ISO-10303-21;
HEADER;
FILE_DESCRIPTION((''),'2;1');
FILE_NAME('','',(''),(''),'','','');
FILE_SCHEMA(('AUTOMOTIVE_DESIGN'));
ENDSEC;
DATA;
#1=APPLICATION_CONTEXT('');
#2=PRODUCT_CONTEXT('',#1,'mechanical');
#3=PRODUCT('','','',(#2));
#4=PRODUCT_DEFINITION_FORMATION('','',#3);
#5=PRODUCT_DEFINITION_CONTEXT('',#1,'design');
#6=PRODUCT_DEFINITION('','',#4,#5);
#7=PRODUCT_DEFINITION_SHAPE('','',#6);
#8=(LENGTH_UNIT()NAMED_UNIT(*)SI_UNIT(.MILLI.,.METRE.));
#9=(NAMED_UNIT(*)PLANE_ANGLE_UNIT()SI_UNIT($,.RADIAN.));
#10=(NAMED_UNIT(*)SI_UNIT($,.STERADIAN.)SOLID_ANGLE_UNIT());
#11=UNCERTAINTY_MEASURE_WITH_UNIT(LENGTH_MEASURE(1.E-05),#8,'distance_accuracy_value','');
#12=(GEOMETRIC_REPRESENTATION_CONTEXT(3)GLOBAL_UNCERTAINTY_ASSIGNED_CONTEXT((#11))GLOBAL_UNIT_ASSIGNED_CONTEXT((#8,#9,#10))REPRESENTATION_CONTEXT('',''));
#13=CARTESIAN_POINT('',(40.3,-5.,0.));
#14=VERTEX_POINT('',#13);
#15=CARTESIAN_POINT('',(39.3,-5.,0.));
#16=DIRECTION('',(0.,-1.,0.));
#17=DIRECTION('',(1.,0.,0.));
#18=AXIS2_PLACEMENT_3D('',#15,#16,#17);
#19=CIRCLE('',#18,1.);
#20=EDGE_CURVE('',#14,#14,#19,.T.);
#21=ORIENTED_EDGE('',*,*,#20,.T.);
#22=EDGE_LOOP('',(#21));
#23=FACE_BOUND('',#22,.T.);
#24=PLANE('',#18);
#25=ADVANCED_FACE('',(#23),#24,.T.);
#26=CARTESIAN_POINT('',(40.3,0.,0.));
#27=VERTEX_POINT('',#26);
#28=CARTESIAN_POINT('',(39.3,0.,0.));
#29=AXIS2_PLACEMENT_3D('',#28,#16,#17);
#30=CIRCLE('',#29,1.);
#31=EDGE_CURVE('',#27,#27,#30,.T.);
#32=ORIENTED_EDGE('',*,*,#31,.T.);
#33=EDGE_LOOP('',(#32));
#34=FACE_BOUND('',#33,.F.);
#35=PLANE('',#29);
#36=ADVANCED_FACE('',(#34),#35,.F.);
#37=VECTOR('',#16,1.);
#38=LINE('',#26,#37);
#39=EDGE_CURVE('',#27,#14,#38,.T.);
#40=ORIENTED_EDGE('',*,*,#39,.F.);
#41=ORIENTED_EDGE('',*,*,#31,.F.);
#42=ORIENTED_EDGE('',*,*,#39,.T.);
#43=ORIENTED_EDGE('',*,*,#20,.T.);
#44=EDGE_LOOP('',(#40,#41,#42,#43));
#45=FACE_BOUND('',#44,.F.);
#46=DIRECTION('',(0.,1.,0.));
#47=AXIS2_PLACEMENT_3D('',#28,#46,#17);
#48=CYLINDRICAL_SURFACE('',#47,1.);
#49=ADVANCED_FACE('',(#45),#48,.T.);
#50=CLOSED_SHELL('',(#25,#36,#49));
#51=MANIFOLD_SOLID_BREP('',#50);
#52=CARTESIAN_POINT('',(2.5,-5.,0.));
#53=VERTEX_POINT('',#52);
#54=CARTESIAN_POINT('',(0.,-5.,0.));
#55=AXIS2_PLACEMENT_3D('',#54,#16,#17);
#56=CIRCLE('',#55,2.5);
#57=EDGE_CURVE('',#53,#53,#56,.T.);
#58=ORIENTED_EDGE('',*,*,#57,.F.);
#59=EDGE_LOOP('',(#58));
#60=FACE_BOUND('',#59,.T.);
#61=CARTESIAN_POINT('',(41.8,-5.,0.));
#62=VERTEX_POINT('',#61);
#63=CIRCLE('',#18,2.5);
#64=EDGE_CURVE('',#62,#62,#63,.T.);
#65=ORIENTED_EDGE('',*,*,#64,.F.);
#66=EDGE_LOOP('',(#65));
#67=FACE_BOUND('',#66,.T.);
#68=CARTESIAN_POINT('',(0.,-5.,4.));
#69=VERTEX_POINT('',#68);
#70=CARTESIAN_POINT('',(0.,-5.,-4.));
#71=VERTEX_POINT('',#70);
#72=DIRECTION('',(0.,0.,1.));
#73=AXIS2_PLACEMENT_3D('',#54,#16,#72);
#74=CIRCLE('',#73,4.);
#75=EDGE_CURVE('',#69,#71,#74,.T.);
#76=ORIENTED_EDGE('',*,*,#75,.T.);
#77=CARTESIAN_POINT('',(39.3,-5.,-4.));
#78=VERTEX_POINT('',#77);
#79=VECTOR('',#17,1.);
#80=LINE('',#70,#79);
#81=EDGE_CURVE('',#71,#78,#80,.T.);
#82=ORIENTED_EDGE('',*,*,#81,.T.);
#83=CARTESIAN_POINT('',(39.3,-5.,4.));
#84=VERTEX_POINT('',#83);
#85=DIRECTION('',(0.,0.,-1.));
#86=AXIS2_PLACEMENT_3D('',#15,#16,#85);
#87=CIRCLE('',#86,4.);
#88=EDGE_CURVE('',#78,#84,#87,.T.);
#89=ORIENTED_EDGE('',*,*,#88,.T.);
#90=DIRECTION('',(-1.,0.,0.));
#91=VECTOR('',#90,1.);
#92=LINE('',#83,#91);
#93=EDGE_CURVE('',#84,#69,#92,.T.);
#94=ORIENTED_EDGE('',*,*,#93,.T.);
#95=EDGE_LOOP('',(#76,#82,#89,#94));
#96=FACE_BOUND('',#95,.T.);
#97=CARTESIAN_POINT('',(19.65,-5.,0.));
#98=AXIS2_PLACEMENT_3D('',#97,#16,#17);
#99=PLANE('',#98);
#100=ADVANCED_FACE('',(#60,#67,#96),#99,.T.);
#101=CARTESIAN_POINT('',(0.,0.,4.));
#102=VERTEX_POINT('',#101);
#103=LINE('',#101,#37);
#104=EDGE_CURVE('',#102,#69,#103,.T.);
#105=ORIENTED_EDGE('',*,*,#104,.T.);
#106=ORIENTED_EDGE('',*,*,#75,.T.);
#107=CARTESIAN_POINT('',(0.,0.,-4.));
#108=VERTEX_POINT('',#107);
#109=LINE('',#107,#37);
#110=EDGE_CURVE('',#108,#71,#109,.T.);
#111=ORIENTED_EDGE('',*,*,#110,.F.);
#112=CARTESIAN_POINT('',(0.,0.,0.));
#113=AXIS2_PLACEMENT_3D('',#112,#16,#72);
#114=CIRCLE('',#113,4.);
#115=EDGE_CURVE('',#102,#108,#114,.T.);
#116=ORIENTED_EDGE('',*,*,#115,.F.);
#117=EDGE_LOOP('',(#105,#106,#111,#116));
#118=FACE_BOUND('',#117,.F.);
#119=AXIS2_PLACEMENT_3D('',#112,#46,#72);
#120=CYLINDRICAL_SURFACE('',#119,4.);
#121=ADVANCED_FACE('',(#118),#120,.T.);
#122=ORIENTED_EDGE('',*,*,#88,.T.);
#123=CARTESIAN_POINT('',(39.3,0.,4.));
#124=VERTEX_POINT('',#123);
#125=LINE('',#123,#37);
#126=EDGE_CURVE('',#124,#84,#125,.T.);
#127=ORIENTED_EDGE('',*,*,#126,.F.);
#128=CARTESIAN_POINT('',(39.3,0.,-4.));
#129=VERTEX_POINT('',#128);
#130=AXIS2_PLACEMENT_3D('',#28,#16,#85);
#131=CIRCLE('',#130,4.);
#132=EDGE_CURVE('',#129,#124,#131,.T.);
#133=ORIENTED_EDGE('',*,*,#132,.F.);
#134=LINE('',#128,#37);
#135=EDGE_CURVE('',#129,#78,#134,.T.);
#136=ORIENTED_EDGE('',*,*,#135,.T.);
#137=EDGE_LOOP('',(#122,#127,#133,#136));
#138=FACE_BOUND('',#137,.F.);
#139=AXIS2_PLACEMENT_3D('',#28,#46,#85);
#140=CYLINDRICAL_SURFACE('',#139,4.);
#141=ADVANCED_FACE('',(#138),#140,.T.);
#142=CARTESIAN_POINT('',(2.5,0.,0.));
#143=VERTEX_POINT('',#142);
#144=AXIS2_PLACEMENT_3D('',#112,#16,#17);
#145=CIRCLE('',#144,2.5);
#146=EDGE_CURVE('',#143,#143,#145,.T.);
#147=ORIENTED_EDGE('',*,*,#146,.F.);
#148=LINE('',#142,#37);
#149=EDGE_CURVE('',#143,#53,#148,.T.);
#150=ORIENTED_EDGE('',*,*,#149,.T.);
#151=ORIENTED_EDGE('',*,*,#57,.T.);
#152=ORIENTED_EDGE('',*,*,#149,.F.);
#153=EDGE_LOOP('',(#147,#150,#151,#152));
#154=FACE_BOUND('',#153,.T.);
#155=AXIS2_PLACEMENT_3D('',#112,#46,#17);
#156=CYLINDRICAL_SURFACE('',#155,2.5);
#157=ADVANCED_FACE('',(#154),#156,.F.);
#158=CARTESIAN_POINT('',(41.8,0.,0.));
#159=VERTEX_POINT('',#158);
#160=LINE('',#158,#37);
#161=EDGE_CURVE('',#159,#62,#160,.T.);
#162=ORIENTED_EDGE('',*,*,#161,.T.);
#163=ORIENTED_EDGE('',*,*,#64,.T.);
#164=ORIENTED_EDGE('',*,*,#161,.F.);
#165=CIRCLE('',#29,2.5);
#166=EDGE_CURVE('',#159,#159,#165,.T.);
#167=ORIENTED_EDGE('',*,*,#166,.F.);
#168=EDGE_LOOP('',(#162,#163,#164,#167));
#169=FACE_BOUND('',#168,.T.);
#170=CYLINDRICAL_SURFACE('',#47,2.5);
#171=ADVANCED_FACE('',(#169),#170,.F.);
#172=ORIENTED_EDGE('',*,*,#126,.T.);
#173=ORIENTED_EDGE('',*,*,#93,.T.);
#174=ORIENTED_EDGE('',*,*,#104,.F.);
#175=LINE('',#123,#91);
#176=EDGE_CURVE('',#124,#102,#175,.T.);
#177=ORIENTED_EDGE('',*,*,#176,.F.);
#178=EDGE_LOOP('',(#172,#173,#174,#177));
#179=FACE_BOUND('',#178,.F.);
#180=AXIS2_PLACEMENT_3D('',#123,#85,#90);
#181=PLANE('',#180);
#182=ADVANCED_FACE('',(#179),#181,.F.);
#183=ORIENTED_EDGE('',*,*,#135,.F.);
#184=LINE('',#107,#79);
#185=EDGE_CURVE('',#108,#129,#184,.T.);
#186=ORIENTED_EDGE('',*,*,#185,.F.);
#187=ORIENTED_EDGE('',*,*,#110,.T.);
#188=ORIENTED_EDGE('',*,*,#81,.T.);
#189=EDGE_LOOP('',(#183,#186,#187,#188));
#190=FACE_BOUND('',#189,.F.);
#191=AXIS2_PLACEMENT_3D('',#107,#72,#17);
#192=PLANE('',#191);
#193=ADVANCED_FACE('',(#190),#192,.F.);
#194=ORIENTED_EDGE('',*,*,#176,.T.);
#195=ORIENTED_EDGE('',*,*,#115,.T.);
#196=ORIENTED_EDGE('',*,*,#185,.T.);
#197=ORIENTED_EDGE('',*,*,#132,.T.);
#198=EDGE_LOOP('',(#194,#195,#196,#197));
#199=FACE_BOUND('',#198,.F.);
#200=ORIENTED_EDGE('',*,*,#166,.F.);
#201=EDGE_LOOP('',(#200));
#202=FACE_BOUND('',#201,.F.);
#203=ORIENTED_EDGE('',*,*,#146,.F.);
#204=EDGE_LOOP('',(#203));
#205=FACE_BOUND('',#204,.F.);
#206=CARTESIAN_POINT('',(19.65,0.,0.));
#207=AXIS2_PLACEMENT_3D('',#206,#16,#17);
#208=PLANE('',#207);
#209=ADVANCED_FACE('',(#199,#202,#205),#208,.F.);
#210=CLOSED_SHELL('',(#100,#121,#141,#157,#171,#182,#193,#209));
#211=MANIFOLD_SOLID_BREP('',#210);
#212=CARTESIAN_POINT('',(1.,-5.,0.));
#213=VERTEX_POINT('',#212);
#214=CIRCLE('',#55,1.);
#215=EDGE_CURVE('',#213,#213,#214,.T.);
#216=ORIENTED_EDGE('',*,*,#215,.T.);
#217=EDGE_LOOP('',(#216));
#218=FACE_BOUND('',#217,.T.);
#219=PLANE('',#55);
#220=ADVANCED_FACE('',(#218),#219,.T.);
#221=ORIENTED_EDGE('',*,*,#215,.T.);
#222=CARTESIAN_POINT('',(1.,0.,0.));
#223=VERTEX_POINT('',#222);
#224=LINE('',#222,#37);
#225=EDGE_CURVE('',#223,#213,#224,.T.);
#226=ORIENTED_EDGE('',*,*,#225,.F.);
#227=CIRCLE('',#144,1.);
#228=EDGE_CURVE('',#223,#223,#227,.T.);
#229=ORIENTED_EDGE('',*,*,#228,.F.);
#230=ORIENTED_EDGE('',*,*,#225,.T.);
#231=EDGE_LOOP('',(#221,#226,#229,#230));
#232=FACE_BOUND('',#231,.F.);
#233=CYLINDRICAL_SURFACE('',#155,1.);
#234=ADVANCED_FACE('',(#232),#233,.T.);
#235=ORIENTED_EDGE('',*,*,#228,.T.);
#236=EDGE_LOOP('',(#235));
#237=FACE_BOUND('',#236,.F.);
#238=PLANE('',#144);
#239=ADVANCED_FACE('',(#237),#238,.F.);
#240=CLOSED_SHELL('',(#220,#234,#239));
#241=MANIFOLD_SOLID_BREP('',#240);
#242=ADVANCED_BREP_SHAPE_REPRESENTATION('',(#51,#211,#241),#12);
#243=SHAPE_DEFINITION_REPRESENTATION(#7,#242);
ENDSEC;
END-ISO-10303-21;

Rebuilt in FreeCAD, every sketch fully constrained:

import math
import FreeCAD as App
import Part
import Sketcher
Q = App.Units.Quantity

doc = App.newDocument("Part")
body = doc.addObject("PartDesign::Body", "Body")
body.AllowCompound = True

sketch1 = body.newObject("Sketcher::SketchObject", "Sketch")
sketch1.AttachmentSupport = (doc.getObject("XZ_Plane"), [""])
sketch1.MapMode = "FlatFace"
sketch1.addGeometry([
    Part.ArcOfCircle(Part.Circle(App.Vector(0, 0, 0), App.Vector(0, 0, 1), 4), math.radians(90), math.radians(270)),
    Part.LineSegment(App.Vector(0, -4, 0), App.Vector(39.3, -4, 0)),
    Part.ArcOfCircle(Part.Circle(App.Vector(39.3, 0, 0), App.Vector(0, 0, 1), 4), math.radians(-90), math.radians(90)),
    Part.LineSegment(App.Vector(39.3, 4, 0), App.Vector(0, 4, 0)),
    Part.Circle(App.Vector(0, 0, 0), App.Vector(0, 0, 1), 2.5),
    Part.Circle(App.Vector(39.3, 0, 0), App.Vector(0, 0, 1), 2.5),
    Part.Circle(App.Vector(0, 0, 0), App.Vector(0, 0, 1), 1),
    Part.Circle(App.Vector(39.3, 0, 0), App.Vector(0, 0, 1), 1),
], False)
sketch1.addConstraint([
    Sketcher.Constraint("Tangent", 0, 2, 1, 1),
    Sketcher.Constraint("Tangent", 1, 2, 2, 1),
    Sketcher.Constraint("Tangent", 2, 2, 3, 1),
    Sketcher.Constraint("Tangent", 3, 2, 0, 1),
    Sketcher.Constraint("Horizontal", 1),
    Sketcher.Constraint("Horizontal", 3),
    Sketcher.Constraint("Coincident", 0, 3, -1, 1),
    Sketcher.Constraint("Coincident", 4, 3, -1, 1),
    Sketcher.Constraint("Coincident", 6, 3, -1, 1),
    Sketcher.Constraint("Coincident", 5, 3, 2, 3),
    Sketcher.Constraint("Coincident", 7, 3, 2, 3),
    Sketcher.Constraint("Equal", 4, 5),
    Sketcher.Constraint("Equal", 6, 7),
    Sketcher.Constraint("Diameter", 4, Q("5 mm")),
    Sketcher.Constraint("Diameter", 6, Q("2 mm")),
    Sketcher.Constraint("Radius", 0, Q("4 mm")),
    Sketcher.Constraint("DistanceX", 1, 1, 1, 2, Q("39.3 mm")),
])
pad1 = body.newObject("PartDesign::Pad", "Pad")
pad1.Profile = sketch1
pad1.Length = 5

doc.recompute()
